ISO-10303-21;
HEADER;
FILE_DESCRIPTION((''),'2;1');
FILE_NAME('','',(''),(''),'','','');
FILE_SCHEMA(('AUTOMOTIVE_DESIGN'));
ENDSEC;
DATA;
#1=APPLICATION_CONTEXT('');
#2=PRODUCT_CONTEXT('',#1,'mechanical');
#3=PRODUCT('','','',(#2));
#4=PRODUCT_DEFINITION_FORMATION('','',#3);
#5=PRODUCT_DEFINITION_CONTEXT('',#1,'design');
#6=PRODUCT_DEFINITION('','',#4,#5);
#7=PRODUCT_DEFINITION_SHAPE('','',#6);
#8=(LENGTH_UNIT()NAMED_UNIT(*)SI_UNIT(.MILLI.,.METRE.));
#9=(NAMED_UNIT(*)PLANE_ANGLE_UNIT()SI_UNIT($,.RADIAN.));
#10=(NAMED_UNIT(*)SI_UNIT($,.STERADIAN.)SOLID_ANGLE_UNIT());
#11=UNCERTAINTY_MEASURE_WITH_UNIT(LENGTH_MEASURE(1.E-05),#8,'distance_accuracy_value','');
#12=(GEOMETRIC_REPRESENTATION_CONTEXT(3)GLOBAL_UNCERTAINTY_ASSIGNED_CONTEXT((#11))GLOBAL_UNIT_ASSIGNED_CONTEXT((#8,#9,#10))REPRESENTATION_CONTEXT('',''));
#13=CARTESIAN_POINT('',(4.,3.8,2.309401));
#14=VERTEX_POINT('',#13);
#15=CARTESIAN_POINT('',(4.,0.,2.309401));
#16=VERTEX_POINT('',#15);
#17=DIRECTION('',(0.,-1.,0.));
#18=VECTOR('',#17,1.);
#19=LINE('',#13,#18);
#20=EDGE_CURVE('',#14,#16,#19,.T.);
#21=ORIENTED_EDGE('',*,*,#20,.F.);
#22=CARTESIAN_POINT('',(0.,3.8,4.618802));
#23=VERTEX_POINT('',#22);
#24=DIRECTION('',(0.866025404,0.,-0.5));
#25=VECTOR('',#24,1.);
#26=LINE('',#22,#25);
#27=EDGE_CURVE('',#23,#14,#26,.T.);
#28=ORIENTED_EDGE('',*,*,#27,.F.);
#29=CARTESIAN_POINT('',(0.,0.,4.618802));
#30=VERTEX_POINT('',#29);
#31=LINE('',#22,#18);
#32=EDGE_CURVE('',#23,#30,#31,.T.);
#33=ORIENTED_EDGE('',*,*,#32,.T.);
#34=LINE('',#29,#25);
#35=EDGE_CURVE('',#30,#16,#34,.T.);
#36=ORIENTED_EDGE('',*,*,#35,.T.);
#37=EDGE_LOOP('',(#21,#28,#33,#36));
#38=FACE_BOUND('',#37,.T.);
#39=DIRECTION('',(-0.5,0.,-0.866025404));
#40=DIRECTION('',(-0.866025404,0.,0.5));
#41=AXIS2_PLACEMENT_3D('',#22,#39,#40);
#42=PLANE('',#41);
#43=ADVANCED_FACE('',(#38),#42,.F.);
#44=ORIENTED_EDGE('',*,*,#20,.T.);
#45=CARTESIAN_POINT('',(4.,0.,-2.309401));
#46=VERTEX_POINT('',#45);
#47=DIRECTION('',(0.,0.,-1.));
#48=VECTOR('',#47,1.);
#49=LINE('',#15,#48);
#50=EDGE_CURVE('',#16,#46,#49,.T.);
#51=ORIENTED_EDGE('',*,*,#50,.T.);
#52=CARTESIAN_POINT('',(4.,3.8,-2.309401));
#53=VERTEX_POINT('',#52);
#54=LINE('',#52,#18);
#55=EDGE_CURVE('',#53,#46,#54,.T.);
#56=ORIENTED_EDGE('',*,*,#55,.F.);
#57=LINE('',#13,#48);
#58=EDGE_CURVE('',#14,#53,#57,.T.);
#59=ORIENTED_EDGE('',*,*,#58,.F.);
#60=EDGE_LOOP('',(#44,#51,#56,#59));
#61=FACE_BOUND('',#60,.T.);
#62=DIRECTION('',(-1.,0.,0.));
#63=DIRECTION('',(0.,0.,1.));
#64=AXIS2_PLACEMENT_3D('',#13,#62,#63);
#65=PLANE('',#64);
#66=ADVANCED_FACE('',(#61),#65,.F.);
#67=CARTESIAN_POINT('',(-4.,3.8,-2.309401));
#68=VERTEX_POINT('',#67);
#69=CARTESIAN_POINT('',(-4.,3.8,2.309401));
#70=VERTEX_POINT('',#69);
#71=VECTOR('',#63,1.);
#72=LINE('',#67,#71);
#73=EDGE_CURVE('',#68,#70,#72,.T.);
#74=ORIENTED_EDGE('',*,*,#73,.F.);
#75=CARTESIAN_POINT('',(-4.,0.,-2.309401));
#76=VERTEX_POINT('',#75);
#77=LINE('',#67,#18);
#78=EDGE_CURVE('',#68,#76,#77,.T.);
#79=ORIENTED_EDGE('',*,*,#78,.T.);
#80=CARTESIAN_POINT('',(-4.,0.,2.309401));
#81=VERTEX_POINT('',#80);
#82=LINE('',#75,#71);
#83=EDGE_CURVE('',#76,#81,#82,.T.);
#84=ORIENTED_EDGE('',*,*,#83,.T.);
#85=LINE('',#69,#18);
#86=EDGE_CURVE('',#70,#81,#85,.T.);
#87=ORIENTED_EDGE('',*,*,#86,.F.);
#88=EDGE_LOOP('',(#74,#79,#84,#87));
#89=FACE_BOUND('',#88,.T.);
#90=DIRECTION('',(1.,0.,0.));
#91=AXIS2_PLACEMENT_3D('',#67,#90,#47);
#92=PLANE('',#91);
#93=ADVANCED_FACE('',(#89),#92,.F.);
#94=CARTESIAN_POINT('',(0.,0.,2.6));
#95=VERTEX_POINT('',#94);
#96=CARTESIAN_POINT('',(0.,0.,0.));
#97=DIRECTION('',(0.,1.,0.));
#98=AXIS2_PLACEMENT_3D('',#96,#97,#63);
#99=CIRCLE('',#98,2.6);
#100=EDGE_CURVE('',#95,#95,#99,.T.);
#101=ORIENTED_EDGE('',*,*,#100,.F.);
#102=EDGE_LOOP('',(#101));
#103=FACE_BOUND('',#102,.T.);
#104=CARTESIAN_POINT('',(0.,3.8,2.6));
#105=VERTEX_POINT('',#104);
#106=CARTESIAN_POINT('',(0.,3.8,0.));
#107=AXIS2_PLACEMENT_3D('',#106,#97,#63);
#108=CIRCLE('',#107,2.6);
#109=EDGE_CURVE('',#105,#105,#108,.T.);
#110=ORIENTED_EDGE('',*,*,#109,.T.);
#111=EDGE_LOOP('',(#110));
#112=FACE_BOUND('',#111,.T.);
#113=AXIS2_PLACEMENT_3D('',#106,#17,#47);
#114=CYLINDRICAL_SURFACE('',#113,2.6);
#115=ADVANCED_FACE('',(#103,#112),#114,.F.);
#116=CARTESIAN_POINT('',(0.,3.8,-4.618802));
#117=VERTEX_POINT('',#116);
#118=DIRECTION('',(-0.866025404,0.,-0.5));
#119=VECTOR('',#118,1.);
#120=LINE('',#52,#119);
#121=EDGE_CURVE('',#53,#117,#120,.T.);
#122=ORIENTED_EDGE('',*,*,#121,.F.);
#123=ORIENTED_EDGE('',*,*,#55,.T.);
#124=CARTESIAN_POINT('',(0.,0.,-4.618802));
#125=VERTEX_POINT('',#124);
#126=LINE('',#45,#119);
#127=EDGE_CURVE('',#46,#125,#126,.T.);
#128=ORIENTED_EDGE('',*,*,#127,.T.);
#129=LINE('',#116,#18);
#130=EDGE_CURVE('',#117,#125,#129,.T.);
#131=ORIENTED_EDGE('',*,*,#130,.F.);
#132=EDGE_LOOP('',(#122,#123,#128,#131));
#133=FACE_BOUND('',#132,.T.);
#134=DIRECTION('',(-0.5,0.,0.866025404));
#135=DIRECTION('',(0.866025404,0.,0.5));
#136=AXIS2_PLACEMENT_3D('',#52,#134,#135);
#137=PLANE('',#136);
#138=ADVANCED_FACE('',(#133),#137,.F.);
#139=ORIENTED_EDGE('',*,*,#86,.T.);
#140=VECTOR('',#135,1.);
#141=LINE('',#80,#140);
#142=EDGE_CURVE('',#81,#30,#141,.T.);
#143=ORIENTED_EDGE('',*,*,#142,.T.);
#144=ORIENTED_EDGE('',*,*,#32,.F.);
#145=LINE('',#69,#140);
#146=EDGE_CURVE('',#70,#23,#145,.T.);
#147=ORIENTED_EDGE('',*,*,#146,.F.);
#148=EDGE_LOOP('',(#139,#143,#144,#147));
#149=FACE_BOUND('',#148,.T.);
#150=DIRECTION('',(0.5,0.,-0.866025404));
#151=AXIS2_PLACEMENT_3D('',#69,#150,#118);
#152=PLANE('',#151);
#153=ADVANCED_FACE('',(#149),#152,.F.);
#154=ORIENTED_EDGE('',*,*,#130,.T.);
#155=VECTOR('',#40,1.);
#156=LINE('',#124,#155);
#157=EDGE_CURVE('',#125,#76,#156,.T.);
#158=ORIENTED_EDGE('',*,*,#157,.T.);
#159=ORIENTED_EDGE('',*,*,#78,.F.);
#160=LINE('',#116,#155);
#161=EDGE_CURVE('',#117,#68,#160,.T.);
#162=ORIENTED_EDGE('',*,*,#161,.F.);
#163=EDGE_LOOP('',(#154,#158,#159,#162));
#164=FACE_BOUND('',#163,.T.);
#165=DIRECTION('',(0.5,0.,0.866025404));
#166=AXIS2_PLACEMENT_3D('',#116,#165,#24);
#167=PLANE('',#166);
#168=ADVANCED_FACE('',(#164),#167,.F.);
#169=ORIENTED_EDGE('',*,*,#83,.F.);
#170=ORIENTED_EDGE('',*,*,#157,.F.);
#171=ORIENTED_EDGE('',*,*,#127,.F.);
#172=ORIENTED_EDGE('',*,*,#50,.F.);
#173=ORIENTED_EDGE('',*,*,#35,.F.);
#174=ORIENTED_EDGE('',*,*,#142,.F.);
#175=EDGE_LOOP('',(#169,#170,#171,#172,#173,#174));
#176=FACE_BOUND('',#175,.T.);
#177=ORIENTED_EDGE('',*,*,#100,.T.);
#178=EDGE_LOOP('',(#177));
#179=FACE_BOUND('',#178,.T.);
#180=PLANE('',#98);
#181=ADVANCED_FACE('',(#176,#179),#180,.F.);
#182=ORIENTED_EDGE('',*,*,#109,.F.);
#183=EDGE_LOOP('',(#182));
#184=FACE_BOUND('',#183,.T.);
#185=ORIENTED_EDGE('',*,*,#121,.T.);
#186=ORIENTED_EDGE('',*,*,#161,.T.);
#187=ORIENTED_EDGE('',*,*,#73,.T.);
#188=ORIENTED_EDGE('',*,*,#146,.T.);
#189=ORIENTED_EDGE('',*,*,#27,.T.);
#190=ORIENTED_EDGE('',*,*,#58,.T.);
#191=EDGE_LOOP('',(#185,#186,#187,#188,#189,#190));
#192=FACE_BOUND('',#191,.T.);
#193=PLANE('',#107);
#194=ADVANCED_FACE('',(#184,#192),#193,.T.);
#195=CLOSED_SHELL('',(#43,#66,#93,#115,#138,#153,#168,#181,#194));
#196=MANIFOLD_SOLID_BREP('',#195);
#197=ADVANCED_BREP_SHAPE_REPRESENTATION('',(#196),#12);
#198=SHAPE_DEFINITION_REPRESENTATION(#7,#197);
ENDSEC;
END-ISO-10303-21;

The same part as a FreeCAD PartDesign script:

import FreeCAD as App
import Part
import Sketcher
from FreeCAD import Vector
Q = App.Units.Quantity


def add_polygon(sketch, points):
    """Adds a closed chain of lines whose ends are joined by coincident constraints."""
    first, n = sketch.GeometryCount, len(points)
    for a, b in zip(points, points[1:] + points[:1]):
        sketch.addGeometry(Part.LineSegment(App.Vector(*a, 0), App.Vector(*b, 0)), False)
    for i in range(n):
        sketch.addConstraint(Sketcher.Constraint("Coincident", first + i, 2, first + (i + 1) % n, 1))

doc = App.newDocument("Part")
body = doc.addObject("PartDesign::Body", "Body")

sketch1 = body.newObject("Sketcher::SketchObject", "Sketch")
sketch1.AttachmentSupport = (doc.getObject("XZ_Plane"), [""])
sketch1.MapMode = "FlatFace"
add_polygon(sketch1, [(4, 2.3), (4, -2.3), (0, -4.6), (-4, -2.3), (-4, 2.3), (0, 4.6)])
sketch1.addGeometry(Part.Circle(Vector(0, 0, 0), Vector(0, 0, 1), 2.6), False)
sketch1.addConstraint([
    Sketcher.Constraint("Vertical", 0),
    Sketcher.Constraint("Vertical", 3),
    Sketcher.Constraint("Coincident", 6, 3, -1, 1),
    Sketcher.Constraint("Symmetric", 0, 2, 3, 2, -1, 1),
    Sketcher.Constraint("Symmetric", 1, 2, 4, 2, -1, 1),
    Sketcher.Constraint("PointOnObject", 1, 2, -2),
    Sketcher.Constraint("Parallel", 2, 5),
    Sketcher.Constraint("Horizontal", 0, 2, 2, 2),
    Sketcher.Constraint("Diameter", 6, 5.2),
    Sketcher.Constraint("Angle", 1, Q("-150 deg")),
    Sketcher.Constraint("DistanceX", -1, 1, 0, 2, 4.0),
    Sketcher.Constraint("DistanceY", 0, 2, -1, 1, 2.309401),
])
pad1 = body.newObject("PartDesign::Pad", "Pad")
pad1.Profile = sketch1
pad1.Length = 3.8
pad1.Reversed = True

doc.recompute()
